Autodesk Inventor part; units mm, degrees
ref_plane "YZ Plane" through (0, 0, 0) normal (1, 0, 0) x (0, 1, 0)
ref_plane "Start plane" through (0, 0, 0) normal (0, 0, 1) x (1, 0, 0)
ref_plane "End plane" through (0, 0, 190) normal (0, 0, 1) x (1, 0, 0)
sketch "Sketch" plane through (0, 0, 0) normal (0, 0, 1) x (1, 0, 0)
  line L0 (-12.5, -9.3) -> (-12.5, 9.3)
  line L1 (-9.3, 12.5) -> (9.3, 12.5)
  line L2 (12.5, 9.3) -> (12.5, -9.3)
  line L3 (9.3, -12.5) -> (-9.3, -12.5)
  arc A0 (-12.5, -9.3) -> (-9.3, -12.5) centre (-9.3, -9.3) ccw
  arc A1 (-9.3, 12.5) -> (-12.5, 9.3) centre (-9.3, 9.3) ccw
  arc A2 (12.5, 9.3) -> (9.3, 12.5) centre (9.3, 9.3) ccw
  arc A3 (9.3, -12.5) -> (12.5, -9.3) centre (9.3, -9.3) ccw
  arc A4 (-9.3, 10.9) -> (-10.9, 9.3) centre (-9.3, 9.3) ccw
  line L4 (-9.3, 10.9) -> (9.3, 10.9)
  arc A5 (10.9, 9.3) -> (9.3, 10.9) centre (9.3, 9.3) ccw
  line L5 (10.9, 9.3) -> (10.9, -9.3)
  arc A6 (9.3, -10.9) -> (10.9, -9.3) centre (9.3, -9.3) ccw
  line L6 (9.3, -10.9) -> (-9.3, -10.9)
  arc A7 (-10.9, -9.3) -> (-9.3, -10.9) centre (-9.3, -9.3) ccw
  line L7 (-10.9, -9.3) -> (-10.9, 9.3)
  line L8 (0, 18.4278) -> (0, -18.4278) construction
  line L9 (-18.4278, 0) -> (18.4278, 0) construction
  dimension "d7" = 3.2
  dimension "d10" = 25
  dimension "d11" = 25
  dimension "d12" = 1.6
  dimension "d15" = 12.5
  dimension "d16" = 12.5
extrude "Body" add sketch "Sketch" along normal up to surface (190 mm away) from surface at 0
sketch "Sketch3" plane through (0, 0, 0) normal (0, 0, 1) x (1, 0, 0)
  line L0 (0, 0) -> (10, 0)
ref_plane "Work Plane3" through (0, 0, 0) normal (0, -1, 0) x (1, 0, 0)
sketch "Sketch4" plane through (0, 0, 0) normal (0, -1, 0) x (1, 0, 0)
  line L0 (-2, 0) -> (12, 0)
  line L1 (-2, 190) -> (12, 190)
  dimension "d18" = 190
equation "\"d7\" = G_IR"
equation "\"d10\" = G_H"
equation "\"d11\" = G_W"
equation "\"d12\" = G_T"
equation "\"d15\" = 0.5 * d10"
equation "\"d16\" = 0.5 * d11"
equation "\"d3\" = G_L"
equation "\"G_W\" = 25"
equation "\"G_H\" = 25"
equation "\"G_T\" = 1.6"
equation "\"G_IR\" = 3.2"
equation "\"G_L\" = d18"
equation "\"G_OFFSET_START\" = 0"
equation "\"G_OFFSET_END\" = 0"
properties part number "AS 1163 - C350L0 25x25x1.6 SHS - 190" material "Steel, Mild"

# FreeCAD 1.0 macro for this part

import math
import FreeCAD as App
import Part
import Sketcher

doc = App.newDocument("Part")
body = doc.addObject("PartDesign::Body", "Body")

# Sketch on XY plane
sketch1 = body.newObject("Sketcher::SketchObject", "Sketch")
sketch1.AttachmentSupport = (doc.getObject("XY_Plane"), [""])
sketch1.MapMode = "FlatFace"
sketch1.addGeometry([
    Part.LineSegment(App.Vector(-12.5, 9.3, 0), App.Vector(-12.5, -9.3, 0)),  # 0
    Part.ArcOfCircle(Part.Circle(App.Vector(-9.3, -9.3, 0), App.Vector(0, 0, 1), 3.2), math.radians(180), math.radians(270)),  # 1
    Part.LineSegment(App.Vector(-9.3, -12.5, 0), App.Vector(9.3, -12.5, 0)),  # 2
    Part.ArcOfCircle(Part.Circle(App.Vector(9.3, -9.3, 0), App.Vector(0, 0, 1), 3.2), math.radians(-90), math.radians(0)),  # 3
    Part.LineSegment(App.Vector(12.5, -9.3, 0), App.Vector(12.5, 9.3, 0)),  # 4
    Part.ArcOfCircle(Part.Circle(App.Vector(9.3, 9.3, 0), App.Vector(0, 0, 1), 3.2), math.radians(0), math.radians(90)),  # 5
    Part.LineSegment(App.Vector(9.3, 12.5, 0), App.Vector(-9.3, 12.5, 0)),  # 6
    Part.ArcOfCircle(Part.Circle(App.Vector(-9.3, 9.3, 0), App.Vector(0, 0, 1), 3.2), math.radians(90), math.radians(180)),  # 7
    Part.ArcOfCircle(Part.Circle(App.Vector(-9.3, 9.3, 0), App.Vector(0, 0, 1), 1.6), math.radians(90), math.radians(180)),  # 8
    Part.LineSegment(App.Vector(-9.3, 10.9, 0), App.Vector(9.3, 10.9, 0)),  # 9
    Part.ArcOfCircle(Part.Circle(App.Vector(9.3, 9.3, 0), App.Vector(0, 0, 1), 1.6), math.radians(0), math.radians(90)),  # 10
    Part.LineSegment(App.Vector(10.9, 9.3, 0), App.Vector(10.9, -9.3, 0)),  # 11
    Part.ArcOfCircle(Part.Circle(App.Vector(9.3, -9.3, 0), App.Vector(0, 0, 1), 1.6), math.radians(-90), math.radians(0)),  # 12
    Part.LineSegment(App.Vector(9.3, -10.9, 0), App.Vector(-9.3, -10.9, 0)),  # 13
    Part.ArcOfCircle(Part.Circle(App.Vector(-9.3, -9.3, 0), App.Vector(0, 0, 1), 1.6), math.radians(180), math.radians(270)),  # 14
    Part.LineSegment(App.Vector(-10.9, -9.3, 0), App.Vector(-10.9, 9.3, 0)),  # 15
], False)
sketch1.addConstraint([
    Sketcher.Constraint("Tangent", 0, 2, 1, 1),
    Sketcher.Constraint("Tangent", 1, 2, 2, 1),
    Sketcher.Constraint("Tangent", 2, 2, 3, 1),
    Sketcher.Constraint("Tangent", 3, 2, 4, 1),
    Sketcher.Constraint("Tangent", 4, 2, 5, 1),
    Sketcher.Constraint("Tangent", 5, 2, 6, 1),
    Sketcher.Constraint("Tangent", 6, 2, 7, 1),
    Sketcher.Constraint("Tangent", 7, 2, 0, 1),
    Sketcher.Constraint("Tangent", 8, 1, 9, 1),
    Sketcher.Constraint("Tangent", 9, 2, 10, 2),
    Sketcher.Constraint("Tangent", 10, 1, 11, 1),
    Sketcher.Constraint("Tangent", 11, 2, 12, 2),
    Sketcher.Constraint("Tangent", 12, 1, 13, 1),
    Sketcher.Constraint("Tangent", 13, 2, 14, 2),
    Sketcher.Constraint("Tangent", 14, 1, 15, 1),
    Sketcher.Constraint("Tangent", 15, 2, 8, 2),
    Sketcher.Constraint("Vertical", 0),
    Sketcher.Constraint("Horizontal", 2),
    Sketcher.Constraint("Vertical", 4),
    Sketcher.Constraint("Horizontal", 6),
    Sketcher.Constraint("Horizontal", 9),
    Sketcher.Constraint("Vertical", 11),
    Sketcher.Constraint("Horizontal", 13),
    Sketcher.Constraint("Vertical", 15),
    Sketcher.Constraint("Coincident", 8, 3, 7, 3),
    Sketcher.Constraint("Coincident", 10, 3, 5, 3),
    Sketcher.Constraint("Coincident", 12, 3, 3, 3),
    Sketcher.Constraint("Equal", 1, 3),
    Sketcher.Constraint("Equal", 3, 5),
    Sketcher.Constraint("Equal", 5, 7),
    Sketcher.Constraint("Equal", 12, 14),
    Sketcher.Constraint("Symmetric", 1, 3, 5, 3, -1, 1),
    Sketcher.Constraint("Equal", 13, 0),
    Sketcher.Constraint("Radius", 1, 3.2),
    Sketcher.Constraint("Radius", 8, 1.6),
    Sketcher.Constraint("DistanceX", 0, 2, -1, 1, 12.5),
])
pad1 = body.newObject("PartDesign::Pad", "Pad")
pad1.Profile = sketch1
pad1.Length = 190

doc.recompute()
